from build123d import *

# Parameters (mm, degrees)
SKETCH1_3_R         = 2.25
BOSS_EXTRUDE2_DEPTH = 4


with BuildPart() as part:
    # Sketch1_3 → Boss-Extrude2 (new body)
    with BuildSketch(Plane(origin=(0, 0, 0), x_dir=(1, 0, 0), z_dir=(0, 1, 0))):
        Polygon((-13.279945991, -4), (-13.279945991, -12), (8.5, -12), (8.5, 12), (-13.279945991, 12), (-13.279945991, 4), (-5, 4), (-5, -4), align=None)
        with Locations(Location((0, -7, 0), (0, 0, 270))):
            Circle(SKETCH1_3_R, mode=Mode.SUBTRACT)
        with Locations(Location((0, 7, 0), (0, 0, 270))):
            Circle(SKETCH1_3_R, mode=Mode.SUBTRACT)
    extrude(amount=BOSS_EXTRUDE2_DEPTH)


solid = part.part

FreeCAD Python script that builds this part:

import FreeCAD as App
import Part
import Sketcher
from FreeCAD import Vector


def add_polygon(sketch, points):
    """Adds a closed chain of lines whose ends are joined by coincident constraints."""
    first, n = sketch.GeometryCount, len(points)
    for a, b in zip(points, points[1:] + points[:1]):
        sketch.addGeometry(Part.LineSegment(App.Vector(*a, 0), App.Vector(*b, 0)), False)
    for i in range(n):
        sketch.addConstraint(Sketcher.Constraint("Coincident", first + i, 2, first + (i + 1) % n, 1))

doc = App.newDocument("Part")
body = doc.addObject("PartDesign::Body", "Body")

sketch1 = doc.addObject("Sketcher::SketchObject", "Sketch")
body.addObject(sketch1)
sketch1.AttachmentSupport = (doc.XZ_Plane, [""])
sketch1.MapMode = "FlatFace"
add_polygon(sketch1, [(-13.3, 4), (-13.3, 12), (8.5, 12), (8.5, -12), (-13.3, -12), (-13.3, -4), (-5, -4), (-5, 4)])
sketch1.addGeometry(Part.Circle(Vector(0, 7, 0), Vector(0, 0, 1), 2.2), False)
sketch1.addGeometry(Part.Circle(Vector(0, -7, 0), Vector(0, 0, 1), 2.2), False)
sketch1.addConstraint(Sketcher.Constraint("Vertical", 0))
sketch1.addConstraint(Sketcher.Constraint("Horizontal", 1))
sketch1.addConstraint(Sketcher.Constraint("Vertical", 2))
sketch1.addConstraint(Sketcher.Constraint("Horizontal", 3))
sketch1.addConstraint(Sketcher.Constraint("Vertical", 4))
sketch1.addConstraint(Sketcher.Constraint("Horizontal", 5))
sketch1.addConstraint(Sketcher.Constraint("Vertical", 6))
sketch1.addConstraint(Sketcher.Constraint("Horizontal", 7))
sketch1.addConstraint(Sketcher.Constraint("Equal", 8, 9))
sketch1.addConstraint(Sketcher.Constraint("Symmetric", 8, 3, 9, 3, -1, 1))
sketch1.addConstraint(Sketcher.Constraint("Symmetric", 0, 2, 3, 2, -1))
sketch1.addConstraint(Sketcher.Constraint("PointOnObject", 8, 3, -2))
sketch1.addConstraint(Sketcher.Constraint("Equal", 0, 4))
sketch1.addConstraint(Sketcher.Constraint("Equal", 4, 6))
sketch1.addConstraint(Sketcher.Constraint("Diameter", 8, 4.5))
sketch1.addConstraint(Sketcher.Constraint("DistanceY", 0, 1, 0, 2, 8.0))
sketch1.addConstraint(Sketcher.Constraint("DistanceY", -1, 1, 8, 3, 7.0))
sketch1.addConstraint(Sketcher.Constraint("DistanceX", 5, 2, -1, 1, 5.0))
sketch1.addConstraint(Sketcher.Constraint("DistanceX", -1, 1, 1, 2, 8.5))
sketch1.addConstraint(Sketcher.Constraint("DistanceX", 1, 1, 1, 2, 21.779946))
pad1 = doc.addObject("PartDesign::Pad", "Pad")
body.addObject(pad1)
pad1.Profile = sketch1
pad1.Length = 4
pad1.Reversed = True

doc.recompute()
